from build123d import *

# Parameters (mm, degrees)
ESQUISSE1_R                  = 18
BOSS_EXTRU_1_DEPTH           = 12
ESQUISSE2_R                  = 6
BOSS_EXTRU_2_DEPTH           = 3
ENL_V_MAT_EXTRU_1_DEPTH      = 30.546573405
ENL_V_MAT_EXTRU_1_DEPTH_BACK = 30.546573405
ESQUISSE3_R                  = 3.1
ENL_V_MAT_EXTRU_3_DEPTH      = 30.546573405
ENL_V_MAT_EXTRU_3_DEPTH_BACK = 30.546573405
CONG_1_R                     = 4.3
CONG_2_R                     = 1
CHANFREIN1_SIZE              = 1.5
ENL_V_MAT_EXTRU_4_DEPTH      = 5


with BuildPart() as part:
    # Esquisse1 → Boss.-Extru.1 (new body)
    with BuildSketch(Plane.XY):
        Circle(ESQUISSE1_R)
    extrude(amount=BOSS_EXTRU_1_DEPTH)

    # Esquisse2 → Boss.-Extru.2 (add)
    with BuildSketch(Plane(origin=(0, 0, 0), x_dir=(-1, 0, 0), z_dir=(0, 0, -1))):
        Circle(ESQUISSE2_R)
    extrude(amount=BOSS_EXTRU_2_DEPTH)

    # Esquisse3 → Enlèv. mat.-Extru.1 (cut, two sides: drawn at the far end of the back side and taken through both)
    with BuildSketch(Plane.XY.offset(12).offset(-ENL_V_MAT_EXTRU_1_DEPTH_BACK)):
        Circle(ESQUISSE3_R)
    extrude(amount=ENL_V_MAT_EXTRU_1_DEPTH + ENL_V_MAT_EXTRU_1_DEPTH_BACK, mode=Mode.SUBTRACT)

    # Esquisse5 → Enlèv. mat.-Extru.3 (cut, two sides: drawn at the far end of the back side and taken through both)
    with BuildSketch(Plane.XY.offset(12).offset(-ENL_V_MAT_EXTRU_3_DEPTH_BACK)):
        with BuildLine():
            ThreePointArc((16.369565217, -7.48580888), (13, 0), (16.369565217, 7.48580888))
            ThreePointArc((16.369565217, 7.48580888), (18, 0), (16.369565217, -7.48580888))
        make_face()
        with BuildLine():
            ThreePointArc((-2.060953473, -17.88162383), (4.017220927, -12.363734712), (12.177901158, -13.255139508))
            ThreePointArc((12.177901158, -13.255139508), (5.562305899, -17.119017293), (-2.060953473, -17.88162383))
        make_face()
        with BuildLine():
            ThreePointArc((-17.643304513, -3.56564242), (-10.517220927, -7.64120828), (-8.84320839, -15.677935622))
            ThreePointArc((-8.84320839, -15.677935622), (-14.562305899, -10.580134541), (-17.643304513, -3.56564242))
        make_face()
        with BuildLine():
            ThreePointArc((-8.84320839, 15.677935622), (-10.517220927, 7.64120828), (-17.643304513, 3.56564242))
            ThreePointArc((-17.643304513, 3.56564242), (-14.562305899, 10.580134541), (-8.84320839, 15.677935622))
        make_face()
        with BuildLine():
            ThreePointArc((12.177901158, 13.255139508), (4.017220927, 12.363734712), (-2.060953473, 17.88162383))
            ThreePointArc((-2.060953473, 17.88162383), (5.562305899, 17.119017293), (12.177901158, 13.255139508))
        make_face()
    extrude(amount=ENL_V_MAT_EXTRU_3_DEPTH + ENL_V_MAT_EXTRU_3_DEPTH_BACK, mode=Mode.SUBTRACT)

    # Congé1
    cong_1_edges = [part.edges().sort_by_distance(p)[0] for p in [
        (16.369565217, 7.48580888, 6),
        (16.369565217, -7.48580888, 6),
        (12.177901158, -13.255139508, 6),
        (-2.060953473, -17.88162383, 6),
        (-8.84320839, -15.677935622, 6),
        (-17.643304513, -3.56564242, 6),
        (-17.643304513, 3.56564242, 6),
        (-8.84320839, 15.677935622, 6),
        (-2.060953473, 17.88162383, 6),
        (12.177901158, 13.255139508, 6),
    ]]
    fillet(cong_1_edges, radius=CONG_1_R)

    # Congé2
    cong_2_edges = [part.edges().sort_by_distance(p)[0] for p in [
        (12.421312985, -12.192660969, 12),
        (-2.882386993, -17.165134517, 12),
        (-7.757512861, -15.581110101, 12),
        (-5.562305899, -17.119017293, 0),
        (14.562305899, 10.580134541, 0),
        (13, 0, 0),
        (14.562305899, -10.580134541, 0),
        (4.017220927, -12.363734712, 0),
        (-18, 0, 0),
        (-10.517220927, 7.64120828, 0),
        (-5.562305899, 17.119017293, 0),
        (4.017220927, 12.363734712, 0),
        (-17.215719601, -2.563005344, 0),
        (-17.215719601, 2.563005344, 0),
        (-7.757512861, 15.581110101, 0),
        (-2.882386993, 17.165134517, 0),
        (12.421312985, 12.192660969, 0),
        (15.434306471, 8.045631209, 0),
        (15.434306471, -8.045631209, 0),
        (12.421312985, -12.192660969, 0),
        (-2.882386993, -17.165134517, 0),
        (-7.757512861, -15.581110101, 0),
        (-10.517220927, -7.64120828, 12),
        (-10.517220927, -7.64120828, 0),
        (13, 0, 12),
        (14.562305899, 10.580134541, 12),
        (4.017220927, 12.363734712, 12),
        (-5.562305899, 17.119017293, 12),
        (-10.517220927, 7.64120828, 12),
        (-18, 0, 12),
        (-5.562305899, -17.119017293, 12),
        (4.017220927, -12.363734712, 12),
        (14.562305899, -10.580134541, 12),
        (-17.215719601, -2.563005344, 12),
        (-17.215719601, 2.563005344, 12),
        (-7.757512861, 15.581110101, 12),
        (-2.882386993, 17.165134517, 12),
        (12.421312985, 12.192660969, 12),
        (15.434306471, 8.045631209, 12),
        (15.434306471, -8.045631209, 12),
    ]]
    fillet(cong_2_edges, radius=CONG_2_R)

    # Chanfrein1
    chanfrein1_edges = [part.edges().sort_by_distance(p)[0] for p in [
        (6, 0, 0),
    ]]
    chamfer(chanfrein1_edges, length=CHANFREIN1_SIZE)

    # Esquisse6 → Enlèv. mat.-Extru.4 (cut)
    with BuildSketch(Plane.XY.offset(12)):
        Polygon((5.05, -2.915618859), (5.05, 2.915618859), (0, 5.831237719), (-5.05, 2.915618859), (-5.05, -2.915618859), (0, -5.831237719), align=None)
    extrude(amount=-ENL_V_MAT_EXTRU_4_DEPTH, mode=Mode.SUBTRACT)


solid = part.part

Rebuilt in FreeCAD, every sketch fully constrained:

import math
import FreeCAD as App
import Part
import Sketcher

V = App.Vector
Q = App.Units.Quantity


def edges_at(feature, points):
    """Names of the edges that pass closest to the given points."""
    edges = feature.Shape.Edges
    near = lambda p: min(range(len(edges)), key=lambda i: edges[i].distToShape(Part.Vertex(*p))[0])
    return sorted({f"Edge{near(p) + 1}" for p in points})


def add_polygon(sketch, points):
    """Adds a closed chain of lines whose ends are joined by coincident constraints."""
    first, n = sketch.GeometryCount, len(points)
    for a, b in zip(points, points[1:] + points[:1]):
        sketch.addGeometry(Part.LineSegment(App.Vector(*a, 0), App.Vector(*b, 0)), False)
    for i in range(n):
        sketch.addConstraint(Sketcher.Constraint("Coincident", first + i, 2, first + (i + 1) % n, 1))

doc = App.newDocument("Part")
body = doc.addObject("PartDesign::Body", "Body")

# Sketch on XY plane
sketch1 = doc.addObject("Sketcher::SketchObject", "Sketch")
body.addObject(sketch1)
sketch1.AttachmentSupport = (doc.XY_Plane, [""])
sketch1.MapMode = "FlatFace"
sketch1.addGeometry(Part.Circle(V(0, 0, 0), V(0, 0, 1), 18), False)
sketch1.addConstraint(Sketcher.Constraint("Coincident", 0, 3, -1, 1))
sketch1.addConstraint(Sketcher.Constraint("Diameter", 0, 36.0))
pad1 = doc.addObject("PartDesign::Pad", "Pad")
body.addObject(pad1)
pad1.Profile = sketch1
pad1.Length = 12

# Sketch on XY plane
sketch2 = doc.addObject("Sketcher::SketchObject", "Sketch001")
body.addObject(sketch2)
sketch2.AttachmentSupport = (doc.XY_Plane, [""])
sketch2.MapMode = "FlatFace"
sketch2.addGeometry(Part.Circle(V(0, 0, 0), V(0, 0, 1), 6), False)
sketch2.addConstraint(Sketcher.Constraint("Coincident", 0, 3, -1, 1))
sketch2.addConstraint(Sketcher.Constraint("Diameter", 0, 12.0))
pad2 = doc.addObject("PartDesign::Pad", "Pad001")
body.addObject(pad2)
pad2.Profile = sketch2
pad2.Length = 3
pad2.Reversed = True

# Sketch on XY plane
sketch3 = doc.addObject("Sketcher::SketchObject", "Sketch002")
body.addObject(sketch3)
sketch3.AttachmentSupport = (doc.XY_Plane, [""])
sketch3.MapMode = "FlatFace"
sketch3.AttachmentOffset = App.Placement(V(0, 0, 12), App.Rotation())
sketch3.addGeometry(Part.Circle(V(0, 0, 0), V(0, 0, 1), 3.1), False)
sketch3.addConstraint(Sketcher.Constraint("Coincident", 0, 3, -1, 1))
sketch3.addConstraint(Sketcher.Constraint("Diameter", 0, 6.2))
pocket1 = doc.addObject("PartDesign::Pocket", "Pocket")
body.addObject(pocket1)
pocket1.Profile = sketch3
pocket1.Type = "ThroughAll"
pocket1.Midplane = True

# Sketch on XY plane
sketch4 = doc.addObject("Sketcher::SketchObject", "Sketch003")
body.addObject(sketch4)
sketch4.AttachmentSupport = (doc.XY_Plane, [""])
sketch4.MapMode = "FlatFace"
sketch4.AttachmentOffset = App.Placement(V(0, 0, 12), App.Rotation())
sketch4.addGeometry(Part.ArcOfCircle(Part.Circle(V(23, 0, 0), V(0, 0, 1), 10), math.radians(131.532401), math.radians(228.467599)), False)
sketch4.addGeometry(Part.ArcOfCircle(Part.Circle(V(0, 0, 0), V(0, 0, 1), 18), math.radians(-24.574638), math.radians(24.574638)), False)
sketch4.addGeometry(Part.ArcOfCircle(Part.Circle(V(7.107391, -21.8743, 0), V(0, 0, 1), 10), math.radians(59.532401), math.radians(156.467599)), False)
sketch4.addGeometry(Part.ArcOfCircle(Part.Circle(V(0, 0, 0), V(0, 0, 1), 18), math.radians(-96.574638), math.radians(-47.425362)), False)
sketch4.addGeometry(Part.ArcOfCircle(Part.Circle(V(-18.607391, -13.519061, 0), V(0, 0, 1), 10), math.radians(-12.467599), math.radians(84.467599)), False)
sketch4.addGeometry(Part.ArcOfCircle(Part.Circle(V(0, 0, 0), V(0, 0, 1), 18), math.radians(-168.574638), math.radians(-119.425362)), False)
sketch4.addGeometry(Part.ArcOfCircle(Part.Circle(V(-18.607391, 13.519061, 0), V(0, 0, 1), 10), math.radians(-84.467599), math.radians(12.467599)), False)
sketch4.addGeometry(Part.ArcOfCircle(Part.Circle(V(0, 0, 0), V(0, 0, 1), 18), math.radians(119.425362), math.radians(168.574638)), False)
sketch4.addGeometry(Part.ArcOfCircle(Part.Circle(V(7.107391, 21.8743, 0), V(0, 0, 1), 10), math.radians(-156.467599), math.radians(-59.532401)), False)
sketch4.addGeometry(Part.ArcOfCircle(Part.Circle(V(0, 0, 0), V(0, 0, 1), 18), math.radians(47.425362), math.radians(96.574638)), False)
sketch4.addConstraint(Sketcher.Constraint("Coincident", 0, 1, 1, 2))
sketch4.addConstraint(Sketcher.Constraint("Coincident", 1, 1, 0, 2))
sketch4.addConstraint(Sketcher.Constraint("Coincident", 2, 1, 3, 2))
sketch4.addConstraint(Sketcher.Constraint("Coincident", 3, 1, 2, 2))
sketch4.addConstraint(Sketcher.Constraint("Coincident", 4, 1, 5, 2))
sketch4.addConstraint(Sketcher.Constraint("Coincident", 5, 1, 4, 2))
sketch4.addConstraint(Sketcher.Constraint("Coincident", 6, 1, 7, 2))
sketch4.addConstraint(Sketcher.Constraint("Coincident", 7, 1, 6, 2))
sketch4.addConstraint(Sketcher.Constraint("Coincident", 8, 1, 9, 2))
sketch4.addConstraint(Sketcher.Constraint("Coincident", 9, 1, 8, 2))
sketch4.addConstraint(Sketcher.Constraint("Coincident", 1, 3, -1, 1))
sketch4.addConstraint(Sketcher.Constraint("Coincident", 3, 3, -1, 1))
sketch4.addConstraint(Sketcher.Constraint("Coincident", 5, 3, -1, 1))
sketch4.addConstraint(Sketcher.Constraint("Coincident", 7, 3, -1, 1))
sketch4.addConstraint(Sketcher.Constraint("Coincident", 9, 3, -1, 1))
sketch4.addConstraint(Sketcher.Constraint("Equal", 0, 2))
sketch4.addConstraint(Sketcher.Constraint("Equal", 1, 3))
sketch4.addConstraint(Sketcher.Constraint("Equal", 2, 4))
sketch4.addConstraint(Sketcher.Constraint("Equal", 3, 5))
sketch4.addConstraint(Sketcher.Constraint("Equal", 4, 6))
sketch4.addConstraint(Sketcher.Constraint("Equal", 5, 7))
sketch4.addConstraint(Sketcher.Constraint("Equal", 6, 8))
sketch4.addConstraint(Sketcher.Constraint("Equal", 7, 9))
sketch4.addConstraint(Sketcher.Constraint("Symmetric", 4, 3, 6, 3, -1))
sketch4.addConstraint(Sketcher.Constraint("Symmetric", 2, 3, 8, 3, -1))
sketch4.addConstraint(Sketcher.Constraint("PointOnObject", 0, 3, -1))
sketch4.addConstraint(Sketcher.Constraint("Radius", 0, 10.0))
sketch4.addConstraint(Sketcher.Constraint("Radius", 1, 18.0))
sketch4.addConstraint(Sketcher.Constraint("DistanceX", -1, 1, 0, 3, 23.0))
sketch4.addConstraint(Sketcher.Constraint("DistanceY", 2, 3, -1, 1, 21.8743))
sketch4.addConstraint(Sketcher.Constraint("DistanceX", -1, 1, 2, 1, 12.177901))
sketch4.addConstraint(Sketcher.Constraint("DistanceX", 4, 1, 2, 3, 15.950599))
sketch4.addConstraint(Sketcher.Constraint("DistanceX", 4, 3, -1, 1, 18.607391))
pocket2 = doc.addObject("PartDesign::Pocket", "Pocket001")
body.addObject(pocket2)
pocket2.Profile = sketch4
pocket2.Type = "ThroughAll"
pocket2.Midplane = True
doc.recompute()

fillet = doc.addObject("PartDesign::Fillet", "Fillet")
body.addObject(fillet)
fillet.Base = (pocket2, edges_at(pocket2, [
    (16.37, 7.486, 6),
    (16.37, -7.486, 6),
    (12.178, -13.255, 6),
    (-2.061, -17.882, 6),
    (-8.843, -15.678, 6),
    (-17.643, -3.566, 6),
    (-17.643, 3.566, 6),
    (-8.843, 15.678, 6),
    (-2.061, 17.882, 6),
    (12.178, 13.255, 6),
]))
fillet.Radius = 4.3
doc.recompute()

fillet2 = doc.addObject("PartDesign::Fillet", "Fillet001")
body.addObject(fillet2)
fillet2.Base = (fillet, edges_at(fillet, [
    (12.421, -12.193, 12),
    (-2.882, -17.165, 12),
    (-7.758, -15.581, 12),
    (-5.562, -17.119, 0),
    (14.562, 10.58, 0),
    (13, 0, 0),
    (14.562, -10.58, 0),
    (4.017, -12.364, 0),
    (-18, 0, 0),
    (-10.517, 7.641, 0),
    (-5.562, 17.119, 0),
    (4.017, 12.364, 0),
    (-17.216, -2.563, 0),
    (-17.216, 2.563, 0),
    (-7.758, 15.581, 0),
    (-2.882, 17.165, 0),
    (12.421, 12.193, 0),
    (15.434, 8.046, 0),
    (15.434, -8.046, 0),
    (12.421, -12.193, 0),
    (-2.882, -17.165, 0),
    (-7.758, -15.581, 0),
    (-10.517, -7.641, 12),
    (-10.517, -7.641, 0),
    (13, 0, 12),
    (14.562, 10.58, 12),
    (4.017, 12.364, 12),
    (-5.562, 17.119, 12),
    (-10.517, 7.641, 12),
    (-18, 0, 12),
    (-5.562, -17.119, 12),
    (4.017, -12.364, 12),
    (14.562, -10.58, 12),
    (-17.216, -2.563, 12),
    (-17.216, 2.563, 12),
    (-7.758, 15.581, 12),
    (-2.882, 17.165, 12),
    (12.421, 12.193, 12),
    (15.434, 8.046, 12),
    (15.434, -8.046, 12),
]))
fillet2.Radius = 1
doc.recompute()

chamfer = doc.addObject("PartDesign::Chamfer", "Chamfer")
body.addObject(chamfer)
chamfer.Base = (fillet2, edges_at(fillet2, [(6, 0, 0)]))
chamfer.Size = 1.5

# Sketch on XY plane
sketch5 = doc.addObject("Sketcher::SketchObject", "Sketch004")
body.addObject(sketch5)
sketch5.AttachmentSupport = (doc.XY_Plane, [""])
sketch5.MapMode = "FlatFace"
sketch5.AttachmentOffset = App.Placement(V(0, 0, 12), App.Rotation())
add_polygon(sketch5, [(5.05, -2.915619), (5.05, 2.915619), (0, 5.831238), (-5.05, 2.915619), (-5.05, -2.915619), (0, -5.831238)])  # lines 0-5
sketch5.addConstraint(Sketcher.Constraint("Vertical", 0))
sketch5.addConstraint(Sketcher.Constraint("Vertical", 3))
sketch5.addConstraint(Sketcher.Constraint("Symmetric", 0, 2, 3, 2, -1, 1))
sketch5.addConstraint(Sketcher.Constraint("Symmetric", 1, 2, 4, 2, -1, 1))
sketch5.addConstraint(Sketcher.Constraint("PointOnObject", 1, 2, -2))
sketch5.addConstraint(Sketcher.Constraint("Parallel", 2, 5))
sketch5.addConstraint(Sketcher.Constraint("Horizontal", 0, 2, 2, 2))
sketch5.addConstraint(Sketcher.Constraint("Angle", 1, Q("150 deg")))
sketch5.addConstraint(Sketcher.Constraint("DistanceX", 2, 2, 0, 2, 10.1))
sketch5.addConstraint(Sketcher.Constraint("DistanceY", 0, 1, 0, 2, 5.831238))
pocket3 = doc.addObject("PartDesign::Pocket", "Pocket002")
body.addObject(pocket3)
pocket3.Profile = sketch5
pocket3.Length = 5

doc.recompute()
